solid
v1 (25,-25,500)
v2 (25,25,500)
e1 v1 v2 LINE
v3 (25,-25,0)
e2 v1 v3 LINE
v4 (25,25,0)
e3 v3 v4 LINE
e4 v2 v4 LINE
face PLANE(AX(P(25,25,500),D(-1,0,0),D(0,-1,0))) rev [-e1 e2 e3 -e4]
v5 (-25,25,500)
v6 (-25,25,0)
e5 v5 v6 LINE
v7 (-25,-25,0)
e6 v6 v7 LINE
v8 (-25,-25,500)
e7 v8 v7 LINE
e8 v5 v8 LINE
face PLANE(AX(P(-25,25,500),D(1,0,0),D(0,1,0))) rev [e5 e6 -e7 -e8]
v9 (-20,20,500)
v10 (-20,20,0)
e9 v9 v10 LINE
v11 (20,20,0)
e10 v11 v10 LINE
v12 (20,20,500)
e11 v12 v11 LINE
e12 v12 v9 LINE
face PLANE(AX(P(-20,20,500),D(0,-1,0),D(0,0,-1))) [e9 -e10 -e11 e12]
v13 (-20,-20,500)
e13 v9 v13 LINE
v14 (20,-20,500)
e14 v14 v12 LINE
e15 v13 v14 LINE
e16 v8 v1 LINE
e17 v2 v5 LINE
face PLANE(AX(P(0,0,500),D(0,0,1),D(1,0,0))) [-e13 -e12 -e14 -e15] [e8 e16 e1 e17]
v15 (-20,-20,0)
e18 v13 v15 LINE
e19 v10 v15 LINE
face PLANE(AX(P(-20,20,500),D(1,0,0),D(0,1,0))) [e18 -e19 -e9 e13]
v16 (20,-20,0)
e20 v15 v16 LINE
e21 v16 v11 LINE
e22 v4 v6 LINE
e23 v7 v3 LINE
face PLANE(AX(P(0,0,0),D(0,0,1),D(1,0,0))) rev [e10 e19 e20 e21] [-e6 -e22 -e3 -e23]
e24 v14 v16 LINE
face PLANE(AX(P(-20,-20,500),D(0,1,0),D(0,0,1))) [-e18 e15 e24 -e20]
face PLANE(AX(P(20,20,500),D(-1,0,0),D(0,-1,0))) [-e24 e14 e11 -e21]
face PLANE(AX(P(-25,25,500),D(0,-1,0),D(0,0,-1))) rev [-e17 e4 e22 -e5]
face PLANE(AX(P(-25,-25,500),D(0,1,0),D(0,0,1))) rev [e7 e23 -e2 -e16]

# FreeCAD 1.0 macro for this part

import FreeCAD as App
import Part
import Sketcher

doc = App.newDocument("Part")
body = doc.addObject("PartDesign::Body", "Body")

# Sketch on XY plane
sketch1 = doc.addObject("Sketcher::SketchObject", "Sketch")
body.addObject(sketch1)
sketch1.AttachmentSupport = (doc.XY_Plane, [""])
sketch1.MapMode = "FlatFace"
sketch1.addGeometry([
    Part.LineSegment(App.Vector(-25, 25, 0), App.Vector(-25, -25, 0)),  # 0
    Part.LineSegment(App.Vector(-25, -25, 0), App.Vector(25, -25, 0)),  # 1
    Part.LineSegment(App.Vector(25, -25, 0), App.Vector(25, 25, 0)),  # 2
    Part.LineSegment(App.Vector(25, 25, 0), App.Vector(-25, 25, 0)),  # 3
    Part.LineSegment(App.Vector(20, -20, 0), App.Vector(-20, -20, 0)),  # 4
    Part.LineSegment(App.Vector(-20, -20, 0), App.Vector(-20, 20, 0)),  # 5
    Part.LineSegment(App.Vector(-20, 20, 0), App.Vector(20, 20, 0)),  # 6
    Part.LineSegment(App.Vector(20, 20, 0), App.Vector(20, -20, 0)),  # 7
], False)
sketch1.addConstraint([
    Sketcher.Constraint("Coincident", 0, 2, 1, 1),
    Sketcher.Constraint("Coincident", 1, 2, 2, 1),
    Sketcher.Constraint("Coincident", 2, 2, 3, 1),
    Sketcher.Constraint("Coincident", 3, 2, 0, 1),
    Sketcher.Constraint("Coincident", 4, 2, 5, 1),
    Sketcher.Constraint("Coincident", 5, 2, 6, 1),
    Sketcher.Constraint("Coincident", 6, 2, 7, 1),
    Sketcher.Constraint("Coincident", 7, 2, 4, 1),
    Sketcher.Constraint("Vertical", 0),
    Sketcher.Constraint("Horizontal", 1),
    Sketcher.Constraint("Vertical", 2),
    Sketcher.Constraint("Horizontal", 3),
    Sketcher.Constraint("Horizontal", 4),
    Sketcher.Constraint("Vertical", 5),
    Sketcher.Constraint("Horizontal", 6),
    Sketcher.Constraint("Vertical", 7),
    Sketcher.Constraint("Symmetric", 0, 2, 2, 2, -1, 1),
    Sketcher.Constraint("Symmetric", 4, 2, 6, 2, -1, 1),
    Sketcher.Constraint("Equal", 3, 0),
    Sketcher.Constraint("Equal", 6, 5),
    Sketcher.Constraint("DistanceX", 1, 1, 1, 2, 50.0),
    Sketcher.Constraint("DistanceX", 4, 2, 4, 1, 40.0),
])
pad1 = doc.addObject("PartDesign::Pad", "Pad")
body.addObject(pad1)
pad1.Profile = sketch1
pad1.Length = 500

doc.recompute()
